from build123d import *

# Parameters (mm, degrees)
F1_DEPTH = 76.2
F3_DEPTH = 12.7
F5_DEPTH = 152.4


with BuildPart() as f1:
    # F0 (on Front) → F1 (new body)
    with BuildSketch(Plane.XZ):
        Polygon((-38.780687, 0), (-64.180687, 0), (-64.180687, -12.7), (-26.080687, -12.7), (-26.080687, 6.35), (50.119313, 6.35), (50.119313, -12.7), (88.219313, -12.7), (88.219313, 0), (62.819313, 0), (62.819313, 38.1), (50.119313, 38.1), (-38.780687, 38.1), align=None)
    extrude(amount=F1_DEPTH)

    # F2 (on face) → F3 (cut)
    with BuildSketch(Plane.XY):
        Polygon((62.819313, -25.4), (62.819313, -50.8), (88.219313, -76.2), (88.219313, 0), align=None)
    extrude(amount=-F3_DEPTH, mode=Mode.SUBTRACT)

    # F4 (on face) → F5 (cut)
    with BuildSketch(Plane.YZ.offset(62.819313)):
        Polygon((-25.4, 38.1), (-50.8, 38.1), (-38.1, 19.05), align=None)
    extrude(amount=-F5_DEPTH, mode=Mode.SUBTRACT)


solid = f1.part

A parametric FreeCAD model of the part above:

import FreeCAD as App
import Part
import Sketcher
Q = App.Units.Quantity

doc = App.newDocument("Part")
body = doc.addObject("PartDesign::Body", "Body")

# Sketch on XZ plane
sketch1 = body.newObject("Sketcher::SketchObject", "Sketch")
sketch1.AttachmentSupport = (doc.getObject("XZ_Plane"), [""])
sketch1.MapMode = "FlatFace"
sketch1.addGeometry(Part.LineSegment(App.Vector(-38.780687, 0, 0), App.Vector(-64.180687, 0, 0)), False)
sketch1.addGeometry(Part.LineSegment(App.Vector(-64.180687, 0, 0), App.Vector(-64.180687, -12.7, 0)), False)
sketch1.addGeometry(Part.LineSegment(App.Vector(-64.180687, -12.7, 0), App.Vector(-26.080687, -12.7, 0)), False)
sketch1.addGeometry(Part.LineSegment(App.Vector(-26.080687, -12.7, 0), App.Vector(-26.080687, 6.35, 0)), False)
sketch1.addGeometry(Part.LineSegment(App.Vector(-26.080687, 6.35, 0), App.Vector(50.119313, 6.35, 0)), False)
sketch1.addGeometry(Part.LineSegment(App.Vector(50.119313, 6.35, 0), App.Vector(50.119313, -12.7, 0)), False)
sketch1.addGeometry(Part.LineSegment(App.Vector(50.119313, -12.7, 0), App.Vector(88.219313, -12.7, 0)), False)
sketch1.addGeometry(Part.LineSegment(App.Vector(88.219313, -12.7, 0), App.Vector(88.219313, 0, 0)), False)
sketch1.addGeometry(Part.LineSegment(App.Vector(88.219313, 0, 0), App.Vector(62.819313, 0, 0)), False)
sketch1.addGeometry(Part.LineSegment(App.Vector(62.819313, 0, 0), App.Vector(62.819313, 38.1, 0)), False)
sketch1.addGeometry(Part.LineSegment(App.Vector(62.819313, 38.1, 0), App.Vector(-38.780687, 38.1, 0)), False)
sketch1.addGeometry(Part.LineSegment(App.Vector(-38.780687, 38.1, 0), App.Vector(-38.780687, 0, 0)), False)
sketch1.addConstraint(Sketcher.Constraint("Coincident", 0, 2, 1, 1))
sketch1.addConstraint(Sketcher.Constraint("Coincident", 1, 2, 2, 1))
sketch1.addConstraint(Sketcher.Constraint("Coincident", 2, 2, 3, 1))
sketch1.addConstraint(Sketcher.Constraint("Coincident", 3, 2, 4, 1))
sketch1.addConstraint(Sketcher.Constraint("Coincident", 4, 2, 5, 1))
sketch1.addConstraint(Sketcher.Constraint("Coincident", 5, 2, 6, 1))
sketch1.addConstraint(Sketcher.Constraint("Coincident", 6, 2, 7, 1))
sketch1.addConstraint(Sketcher.Constraint("Coincident", 7, 2, 8, 1))
sketch1.addConstraint(Sketcher.Constraint("Coincident", 8, 2, 9, 1))
sketch1.addConstraint(Sketcher.Constraint("Coincident", 9, 2, 10, 1))
sketch1.addConstraint(Sketcher.Constraint("Coincident", 10, 2, 11, 1))
sketch1.addConstraint(Sketcher.Constraint("Coincident", 11, 2, 0, 1))
sketch1.addConstraint(Sketcher.Constraint("Horizontal", 0))
sketch1.addConstraint(Sketcher.Constraint("Vertical", 1))
sketch1.addConstraint(Sketcher.Constraint("Horizontal", 2))
sketch1.addConstraint(Sketcher.Constraint("Vertical", 3))
sketch1.addConstraint(Sketcher.Constraint("Horizontal", 4))
sketch1.addConstraint(Sketcher.Constraint("Vertical", 5))
sketch1.addConstraint(Sketcher.Constraint("Horizontal", 6))
sketch1.addConstraint(Sketcher.Constraint("Vertical", 7))
sketch1.addConstraint(Sketcher.Constraint("Horizontal", 8))
sketch1.addConstraint(Sketcher.Constraint("Vertical", 9))
sketch1.addConstraint(Sketcher.Constraint("Horizontal", 10))
sketch1.addConstraint(Sketcher.Constraint("Vertical", 11))
sketch1.addConstraint(Sketcher.Constraint("PointOnObject", 0, 2, -1))
sketch1.addConstraint(Sketcher.Constraint("PointOnObject", 7, 2, -1))
sketch1.addConstraint(Sketcher.Constraint("Horizontal", 2, 2, 5, 2))
sketch1.addConstraint(Sketcher.Constraint("Equal", 2, 6))
sketch1.addConstraint(Sketcher.Constraint("Equal", 0, 8))
sketch1.addConstraint(Sketcher.Constraint("Equal", 6, 9))
sketch1.addConstraint(Sketcher.Constraint("DistanceX", 0, 2, 0, 1, Q("1 in")))
sketch1.addConstraint(Sketcher.Constraint("DistanceX", 4, 1, 4, 2, Q("3 in")))
sketch1.addConstraint(Sketcher.Constraint("DistanceX", 10, 2, 10, 1, Q("4 in")))
sketch1.addConstraint(Sketcher.Constraint("DistanceY", 1, 2, 1, 1, Q("0.5 in")))
sketch1.addConstraint(Sketcher.Constraint("DistanceY", 3, 1, 3, 2, Q("0.75 in")))
sketch1.addConstraint(Sketcher.Constraint("DistanceX", 0, 2, -1, 1, 64.180687))
pad1 = body.newObject("PartDesign::Pad", "Pad")
pad1.Profile = sketch1
pad1.Length = Q("3 in")

# Sketch on XY plane
sketch2 = body.newObject("Sketcher::SketchObject", "Sketch001")
sketch2.AttachmentSupport = (doc.getObject("XY_Plane"), [""])
sketch2.MapMode = "FlatFace"
sketch2.addGeometry(Part.LineSegment(App.Vector(62.819313, -25.4, 0), App.Vector(62.819313, -50.8, 0)), False)
sketch2.addGeometry(Part.LineSegment(App.Vector(62.819313, -50.8, 0), App.Vector(88.219313, -76.2, 0)), False)
sketch2.addGeometry(Part.LineSegment(App.Vector(88.219313, -76.2, 0), App.Vector(88.219313, 0, 0)), False)
sketch2.addGeometry(Part.LineSegment(App.Vector(88.219313, 0, 0), App.Vector(62.819313, -25.4, 0)), False)
sketch2.addConstraint(Sketcher.Constraint("Coincident", 0, 2, 1, 1))
sketch2.addConstraint(Sketcher.Constraint("Coincident", 1, 2, 2, 1))
sketch2.addConstraint(Sketcher.Constraint("Coincident", 2, 2, 3, 1))
sketch2.addConstraint(Sketcher.Constraint("Coincident", 3, 2, 0, 1))
sketch2.addConstraint(Sketcher.Constraint("Vertical", 0))
sketch2.addConstraint(Sketcher.Constraint("Vertical", 2))
sketch2.addConstraint(Sketcher.Constraint("PointOnObject", 2, 2, -1))
sketch2.addConstraint(Sketcher.Constraint("Perpendicular", 1, 3))
sketch2.addConstraint(Sketcher.Constraint("Equal", 1, 3))
sketch2.addConstraint(Sketcher.Constraint("DistanceY", 0, 2, 0, 1, Q("1 in")))
sketch2.addConstraint(Sketcher.Constraint("DistanceY", 2, 1, 2, 2, Q("3 in")))
sketch2.addConstraint(Sketcher.Constraint("DistanceX", -1, 1, 0, 2, 62.819313))
pocket1 = body.newObject("PartDesign::Pocket", "Pocket")
pocket1.Profile = sketch2
pocket1.Length = Q("0.5 in")

# Sketch on YZ plane
sketch3 = body.newObject("Sketcher::SketchObject", "Sketch002")
sketch3.AttachmentSupport = (doc.getObject("YZ_Plane"), [""])
sketch3.MapMode = "FlatFace"
sketch3.AttachmentOffset = App.Placement(App.Vector(0, 0, 62.819313), App.Rotation())
sketch3.addGeometry(Part.LineSegment(App.Vector(-25.4, 38.1, 0), App.Vector(-50.8, 38.1, 0)), False)
sketch3.addGeometry(Part.LineSegment(App.Vector(-50.8, 38.1, 0), App.Vector(-38.1, 19.05, 0)), False)
sketch3.addGeometry(Part.LineSegment(App.Vector(-38.1, 19.05, 0), App.Vector(-25.4, 38.1, 0)), False)
sketch3.addConstraint(Sketcher.Constraint("Coincident", 0, 2, 1, 1))
sketch3.addConstraint(Sketcher.Constraint("Coincident", 1, 2, 2, 1))
sketch3.addConstraint(Sketcher.Constraint("Coincident", 2, 2, 0, 1))
sketch3.addConstraint(Sketcher.Constraint("Horizontal", 0))
sketch3.addConstraint(Sketcher.Constraint("Equal", 1, 2))
sketch3.addConstraint(Sketcher.Constraint("DistanceX", 0, 2, 0, 1, Q("1 in")))
sketch3.addConstraint(Sketcher.Constraint("DistanceX", 0, 2, -1, 1, Q("2 in")))
sketch3.addConstraint(Sketcher.Constraint("DistanceY", -1, 1, 0, 2, Q("1.5 in")))
sketch3.addConstraint(Sketcher.Constraint("DistanceY", -1, 1, 1, 2, Q("0.75 in")))
pocket2 = body.newObject("PartDesign::Pocket", "Pocket001")
pocket2.Profile = sketch3
pocket2.Length = Q("6 in")

doc.recompute()
